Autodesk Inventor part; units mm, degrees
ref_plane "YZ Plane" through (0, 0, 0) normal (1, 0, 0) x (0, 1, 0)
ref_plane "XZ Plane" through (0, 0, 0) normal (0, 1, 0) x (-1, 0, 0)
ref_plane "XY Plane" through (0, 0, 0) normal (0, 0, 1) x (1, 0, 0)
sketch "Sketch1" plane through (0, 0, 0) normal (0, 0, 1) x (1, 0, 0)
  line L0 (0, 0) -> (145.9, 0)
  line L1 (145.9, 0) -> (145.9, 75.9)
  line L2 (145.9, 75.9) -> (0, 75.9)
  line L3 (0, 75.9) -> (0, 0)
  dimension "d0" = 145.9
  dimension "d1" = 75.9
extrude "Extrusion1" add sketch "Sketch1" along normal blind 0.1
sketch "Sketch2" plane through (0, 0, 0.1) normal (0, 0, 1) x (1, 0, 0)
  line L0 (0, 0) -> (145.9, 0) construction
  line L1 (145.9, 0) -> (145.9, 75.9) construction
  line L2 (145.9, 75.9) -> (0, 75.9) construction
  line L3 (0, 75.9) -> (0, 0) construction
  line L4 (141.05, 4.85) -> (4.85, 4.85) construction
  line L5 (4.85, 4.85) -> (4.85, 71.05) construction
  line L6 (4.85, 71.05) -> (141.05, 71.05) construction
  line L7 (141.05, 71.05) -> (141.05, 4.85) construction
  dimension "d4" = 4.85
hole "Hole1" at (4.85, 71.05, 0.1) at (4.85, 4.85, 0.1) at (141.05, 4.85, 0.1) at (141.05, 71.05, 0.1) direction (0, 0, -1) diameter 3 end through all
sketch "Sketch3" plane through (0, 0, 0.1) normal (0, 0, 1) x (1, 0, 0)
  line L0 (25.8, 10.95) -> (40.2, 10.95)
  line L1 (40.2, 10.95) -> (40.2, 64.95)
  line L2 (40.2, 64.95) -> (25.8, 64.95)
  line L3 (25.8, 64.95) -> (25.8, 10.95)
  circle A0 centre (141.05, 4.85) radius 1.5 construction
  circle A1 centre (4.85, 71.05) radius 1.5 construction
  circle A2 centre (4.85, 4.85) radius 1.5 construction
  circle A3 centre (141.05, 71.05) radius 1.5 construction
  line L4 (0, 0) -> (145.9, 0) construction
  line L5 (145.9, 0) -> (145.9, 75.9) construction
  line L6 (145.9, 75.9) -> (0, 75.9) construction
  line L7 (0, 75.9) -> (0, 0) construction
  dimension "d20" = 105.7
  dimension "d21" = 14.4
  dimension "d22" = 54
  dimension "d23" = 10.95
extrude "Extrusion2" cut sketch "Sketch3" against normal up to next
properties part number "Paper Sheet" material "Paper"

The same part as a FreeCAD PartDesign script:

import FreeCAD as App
import Part
import Sketcher
Q = App.Units.Quantity

doc = App.newDocument("Part")
params = doc.addObject("Spreadsheet::Sheet", "Params")
for row, (alias, value) in enumerate([
    ("sketch1_width", "145.9 mm"),
    ("sketch1_height", "75.9 mm"),
    ("pad1_length", "0.1 mm"),
    ("sketch2_diameter", "3 mm"),
    ("hole_diameter", "3 mm"),
    ("sketch3_height", "54 mm"),
    ("sketch3_width", "14.4 mm"),
], start=1):
    params.set(f"A{row}", alias)
    params.set(f"B{row}", "=" + value)
    params.setAlias(f"B{row}", alias)

body = doc.addObject("PartDesign::Body", "Body")

# Sketch on XY plane
sketch1 = body.newObject("Sketcher::SketchObject", "Sketch")
sketch1.AttachmentSupport = (doc.getObject("XY_Plane"), [""])
sketch1.MapMode = "FlatFace"
sketch1.addGeometry([
    Part.LineSegment(App.Vector(0, 76, 0), App.Vector(0, 0, 0)),
    Part.LineSegment(App.Vector(0, 0, 0), App.Vector(146, 0, 0)),
    Part.LineSegment(App.Vector(146, 0, 0), App.Vector(146, 76, 0)),
    Part.LineSegment(App.Vector(146, 76, 0), App.Vector(0, 76, 0)),
], False)
sketch1.addConstraint([
    Sketcher.Constraint("Coincident", 0, 2, 1, 1),
    Sketcher.Constraint("Coincident", 1, 2, 2, 1),
    Sketcher.Constraint("Coincident", 2, 2, 3, 1),
    Sketcher.Constraint("Coincident", 3, 2, 0, 1),
    Sketcher.Constraint("Vertical", 0),
    Sketcher.Constraint("Horizontal", 1),
    Sketcher.Constraint("Vertical", 2),
    Sketcher.Constraint("Horizontal", 3),
    Sketcher.Constraint("Coincident", 0, 2, -1, 1),
    Sketcher.Constraint("DistanceX", 1, 1, 1, 2, Q("145.9 mm")),
    Sketcher.Constraint("DistanceY", 0, 2, 0, 1, Q("75.9 mm")),
])
sketch1.setExpression("Constraints[9]", "Params.sketch1_width")
sketch1.setExpression("Constraints[10]", "Params.sketch1_height")
pad1 = body.newObject("PartDesign::Pad", "Pad")
pad1.Profile = sketch1
pad1.setExpression("Length", "Params.pad1_length")

# Sketch on XY plane
sketch2 = body.newObject("Sketcher::SketchObject", "Sketch001")
sketch2.AttachmentSupport = (doc.getObject("XY_Plane"), [""])
sketch2.MapMode = "FlatFace"
sketch2.AttachmentOffset = App.Placement(App.Vector(0, 0, 0.1), App.Rotation())
sketch2.addGeometry([
    Part.Circle(App.Vector(4.8, 71, 0), App.Vector(0, 0, 1), 1.5),
    Part.Circle(App.Vector(4.8, 4.8, 0), App.Vector(0, 0, 1), 1.5),
    Part.Circle(App.Vector(141.1, 4.8, 0), App.Vector(0, 0, 1), 1.5),
    Part.Circle(App.Vector(141.1, 71, 0), App.Vector(0, 0, 1), 1.5),
], False)
sketch2.addConstraint([
    Sketcher.Constraint("Equal", 0, 1),
    Sketcher.Constraint("Equal", 1, 2),
    Sketcher.Constraint("Equal", 2, 3),
    Sketcher.Constraint("Horizontal", 1, 3, 2, 3),
    Sketcher.Constraint("Horizontal", 0, 3, 3, 3),
    Sketcher.Constraint("Vertical", 0, 3, 1, 3),
    Sketcher.Constraint("Vertical", 2, 3, 3, 3),
    Sketcher.Constraint("Diameter", 0, Q("3 mm")),
    Sketcher.Constraint("DistanceY", 1, 3, 0, 3, Q("66.2 mm")),
    Sketcher.Constraint("DistanceX", 1, 3, 2, 3, Q("136.2 mm")),
    Sketcher.Constraint("DistanceX", -1, 1, 0, 3, Q("4.85 mm")),
    Sketcher.Constraint("DistanceY", -1, 1, 0, 3, Q("71.05 mm")),
])
sketch2.setExpression("Constraints[7]", "Params.sketch2_diameter")
doc.recompute()
hole = body.newObject("PartDesign::Hole", "Hole")
hole.Profile = sketch2
hole.ThreadType = "None"
hole.setExpression("Diameter", "Params.hole_diameter")
hole.DepthType = "ThroughAll"

# Sketch on XY plane
sketch3 = body.newObject("Sketcher::SketchObject", "Sketch002")
sketch3.AttachmentSupport = (doc.getObject("XY_Plane"), [""])
sketch3.MapMode = "FlatFace"
sketch3.AttachmentOffset = App.Placement(App.Vector(0, 0, 0.1), App.Rotation())
sketch3.addGeometry([
    Part.LineSegment(App.Vector(26, 65, 0), App.Vector(26, 11, 0)),
    Part.LineSegment(App.Vector(26, 11, 0), App.Vector(40, 11, 0)),
    Part.LineSegment(App.Vector(40, 11, 0), App.Vector(40, 65, 0)),
    Part.LineSegment(App.Vector(40, 65, 0), App.Vector(26, 65, 0)),
], False)
sketch3.addConstraint([
    Sketcher.Constraint("Coincident", 0, 2, 1, 1),
    Sketcher.Constraint("Coincident", 1, 2, 2, 1),
    Sketcher.Constraint("Coincident", 2, 2, 3, 1),
    Sketcher.Constraint("Coincident", 3, 2, 0, 1),
    Sketcher.Constraint("Vertical", 0),
    Sketcher.Constraint("Horizontal", 1),
    Sketcher.Constraint("Vertical", 2),
    Sketcher.Constraint("Horizontal", 3),
    Sketcher.Constraint("DistanceY", 0, 2, 0, 1, Q("54 mm")),
    Sketcher.Constraint("DistanceX", 1, 1, 1, 2, Q("14.4 mm")),
    Sketcher.Constraint("DistanceY", -1, 1, 0, 2, Q("10.95 mm")),
    Sketcher.Constraint("DistanceX", -1, 1, 0, 2, Q("25.8 mm")),
])
sketch3.setExpression("Constraints[8]", "Params.sketch3_height")
sketch3.setExpression("Constraints[9]", "Params.sketch3_width")
pocket1 = body.newObject("PartDesign::Pocket", "Pocket")
pocket1.Profile = sketch3
pocket1.Type = "UpToFirst"

doc.recompute()
